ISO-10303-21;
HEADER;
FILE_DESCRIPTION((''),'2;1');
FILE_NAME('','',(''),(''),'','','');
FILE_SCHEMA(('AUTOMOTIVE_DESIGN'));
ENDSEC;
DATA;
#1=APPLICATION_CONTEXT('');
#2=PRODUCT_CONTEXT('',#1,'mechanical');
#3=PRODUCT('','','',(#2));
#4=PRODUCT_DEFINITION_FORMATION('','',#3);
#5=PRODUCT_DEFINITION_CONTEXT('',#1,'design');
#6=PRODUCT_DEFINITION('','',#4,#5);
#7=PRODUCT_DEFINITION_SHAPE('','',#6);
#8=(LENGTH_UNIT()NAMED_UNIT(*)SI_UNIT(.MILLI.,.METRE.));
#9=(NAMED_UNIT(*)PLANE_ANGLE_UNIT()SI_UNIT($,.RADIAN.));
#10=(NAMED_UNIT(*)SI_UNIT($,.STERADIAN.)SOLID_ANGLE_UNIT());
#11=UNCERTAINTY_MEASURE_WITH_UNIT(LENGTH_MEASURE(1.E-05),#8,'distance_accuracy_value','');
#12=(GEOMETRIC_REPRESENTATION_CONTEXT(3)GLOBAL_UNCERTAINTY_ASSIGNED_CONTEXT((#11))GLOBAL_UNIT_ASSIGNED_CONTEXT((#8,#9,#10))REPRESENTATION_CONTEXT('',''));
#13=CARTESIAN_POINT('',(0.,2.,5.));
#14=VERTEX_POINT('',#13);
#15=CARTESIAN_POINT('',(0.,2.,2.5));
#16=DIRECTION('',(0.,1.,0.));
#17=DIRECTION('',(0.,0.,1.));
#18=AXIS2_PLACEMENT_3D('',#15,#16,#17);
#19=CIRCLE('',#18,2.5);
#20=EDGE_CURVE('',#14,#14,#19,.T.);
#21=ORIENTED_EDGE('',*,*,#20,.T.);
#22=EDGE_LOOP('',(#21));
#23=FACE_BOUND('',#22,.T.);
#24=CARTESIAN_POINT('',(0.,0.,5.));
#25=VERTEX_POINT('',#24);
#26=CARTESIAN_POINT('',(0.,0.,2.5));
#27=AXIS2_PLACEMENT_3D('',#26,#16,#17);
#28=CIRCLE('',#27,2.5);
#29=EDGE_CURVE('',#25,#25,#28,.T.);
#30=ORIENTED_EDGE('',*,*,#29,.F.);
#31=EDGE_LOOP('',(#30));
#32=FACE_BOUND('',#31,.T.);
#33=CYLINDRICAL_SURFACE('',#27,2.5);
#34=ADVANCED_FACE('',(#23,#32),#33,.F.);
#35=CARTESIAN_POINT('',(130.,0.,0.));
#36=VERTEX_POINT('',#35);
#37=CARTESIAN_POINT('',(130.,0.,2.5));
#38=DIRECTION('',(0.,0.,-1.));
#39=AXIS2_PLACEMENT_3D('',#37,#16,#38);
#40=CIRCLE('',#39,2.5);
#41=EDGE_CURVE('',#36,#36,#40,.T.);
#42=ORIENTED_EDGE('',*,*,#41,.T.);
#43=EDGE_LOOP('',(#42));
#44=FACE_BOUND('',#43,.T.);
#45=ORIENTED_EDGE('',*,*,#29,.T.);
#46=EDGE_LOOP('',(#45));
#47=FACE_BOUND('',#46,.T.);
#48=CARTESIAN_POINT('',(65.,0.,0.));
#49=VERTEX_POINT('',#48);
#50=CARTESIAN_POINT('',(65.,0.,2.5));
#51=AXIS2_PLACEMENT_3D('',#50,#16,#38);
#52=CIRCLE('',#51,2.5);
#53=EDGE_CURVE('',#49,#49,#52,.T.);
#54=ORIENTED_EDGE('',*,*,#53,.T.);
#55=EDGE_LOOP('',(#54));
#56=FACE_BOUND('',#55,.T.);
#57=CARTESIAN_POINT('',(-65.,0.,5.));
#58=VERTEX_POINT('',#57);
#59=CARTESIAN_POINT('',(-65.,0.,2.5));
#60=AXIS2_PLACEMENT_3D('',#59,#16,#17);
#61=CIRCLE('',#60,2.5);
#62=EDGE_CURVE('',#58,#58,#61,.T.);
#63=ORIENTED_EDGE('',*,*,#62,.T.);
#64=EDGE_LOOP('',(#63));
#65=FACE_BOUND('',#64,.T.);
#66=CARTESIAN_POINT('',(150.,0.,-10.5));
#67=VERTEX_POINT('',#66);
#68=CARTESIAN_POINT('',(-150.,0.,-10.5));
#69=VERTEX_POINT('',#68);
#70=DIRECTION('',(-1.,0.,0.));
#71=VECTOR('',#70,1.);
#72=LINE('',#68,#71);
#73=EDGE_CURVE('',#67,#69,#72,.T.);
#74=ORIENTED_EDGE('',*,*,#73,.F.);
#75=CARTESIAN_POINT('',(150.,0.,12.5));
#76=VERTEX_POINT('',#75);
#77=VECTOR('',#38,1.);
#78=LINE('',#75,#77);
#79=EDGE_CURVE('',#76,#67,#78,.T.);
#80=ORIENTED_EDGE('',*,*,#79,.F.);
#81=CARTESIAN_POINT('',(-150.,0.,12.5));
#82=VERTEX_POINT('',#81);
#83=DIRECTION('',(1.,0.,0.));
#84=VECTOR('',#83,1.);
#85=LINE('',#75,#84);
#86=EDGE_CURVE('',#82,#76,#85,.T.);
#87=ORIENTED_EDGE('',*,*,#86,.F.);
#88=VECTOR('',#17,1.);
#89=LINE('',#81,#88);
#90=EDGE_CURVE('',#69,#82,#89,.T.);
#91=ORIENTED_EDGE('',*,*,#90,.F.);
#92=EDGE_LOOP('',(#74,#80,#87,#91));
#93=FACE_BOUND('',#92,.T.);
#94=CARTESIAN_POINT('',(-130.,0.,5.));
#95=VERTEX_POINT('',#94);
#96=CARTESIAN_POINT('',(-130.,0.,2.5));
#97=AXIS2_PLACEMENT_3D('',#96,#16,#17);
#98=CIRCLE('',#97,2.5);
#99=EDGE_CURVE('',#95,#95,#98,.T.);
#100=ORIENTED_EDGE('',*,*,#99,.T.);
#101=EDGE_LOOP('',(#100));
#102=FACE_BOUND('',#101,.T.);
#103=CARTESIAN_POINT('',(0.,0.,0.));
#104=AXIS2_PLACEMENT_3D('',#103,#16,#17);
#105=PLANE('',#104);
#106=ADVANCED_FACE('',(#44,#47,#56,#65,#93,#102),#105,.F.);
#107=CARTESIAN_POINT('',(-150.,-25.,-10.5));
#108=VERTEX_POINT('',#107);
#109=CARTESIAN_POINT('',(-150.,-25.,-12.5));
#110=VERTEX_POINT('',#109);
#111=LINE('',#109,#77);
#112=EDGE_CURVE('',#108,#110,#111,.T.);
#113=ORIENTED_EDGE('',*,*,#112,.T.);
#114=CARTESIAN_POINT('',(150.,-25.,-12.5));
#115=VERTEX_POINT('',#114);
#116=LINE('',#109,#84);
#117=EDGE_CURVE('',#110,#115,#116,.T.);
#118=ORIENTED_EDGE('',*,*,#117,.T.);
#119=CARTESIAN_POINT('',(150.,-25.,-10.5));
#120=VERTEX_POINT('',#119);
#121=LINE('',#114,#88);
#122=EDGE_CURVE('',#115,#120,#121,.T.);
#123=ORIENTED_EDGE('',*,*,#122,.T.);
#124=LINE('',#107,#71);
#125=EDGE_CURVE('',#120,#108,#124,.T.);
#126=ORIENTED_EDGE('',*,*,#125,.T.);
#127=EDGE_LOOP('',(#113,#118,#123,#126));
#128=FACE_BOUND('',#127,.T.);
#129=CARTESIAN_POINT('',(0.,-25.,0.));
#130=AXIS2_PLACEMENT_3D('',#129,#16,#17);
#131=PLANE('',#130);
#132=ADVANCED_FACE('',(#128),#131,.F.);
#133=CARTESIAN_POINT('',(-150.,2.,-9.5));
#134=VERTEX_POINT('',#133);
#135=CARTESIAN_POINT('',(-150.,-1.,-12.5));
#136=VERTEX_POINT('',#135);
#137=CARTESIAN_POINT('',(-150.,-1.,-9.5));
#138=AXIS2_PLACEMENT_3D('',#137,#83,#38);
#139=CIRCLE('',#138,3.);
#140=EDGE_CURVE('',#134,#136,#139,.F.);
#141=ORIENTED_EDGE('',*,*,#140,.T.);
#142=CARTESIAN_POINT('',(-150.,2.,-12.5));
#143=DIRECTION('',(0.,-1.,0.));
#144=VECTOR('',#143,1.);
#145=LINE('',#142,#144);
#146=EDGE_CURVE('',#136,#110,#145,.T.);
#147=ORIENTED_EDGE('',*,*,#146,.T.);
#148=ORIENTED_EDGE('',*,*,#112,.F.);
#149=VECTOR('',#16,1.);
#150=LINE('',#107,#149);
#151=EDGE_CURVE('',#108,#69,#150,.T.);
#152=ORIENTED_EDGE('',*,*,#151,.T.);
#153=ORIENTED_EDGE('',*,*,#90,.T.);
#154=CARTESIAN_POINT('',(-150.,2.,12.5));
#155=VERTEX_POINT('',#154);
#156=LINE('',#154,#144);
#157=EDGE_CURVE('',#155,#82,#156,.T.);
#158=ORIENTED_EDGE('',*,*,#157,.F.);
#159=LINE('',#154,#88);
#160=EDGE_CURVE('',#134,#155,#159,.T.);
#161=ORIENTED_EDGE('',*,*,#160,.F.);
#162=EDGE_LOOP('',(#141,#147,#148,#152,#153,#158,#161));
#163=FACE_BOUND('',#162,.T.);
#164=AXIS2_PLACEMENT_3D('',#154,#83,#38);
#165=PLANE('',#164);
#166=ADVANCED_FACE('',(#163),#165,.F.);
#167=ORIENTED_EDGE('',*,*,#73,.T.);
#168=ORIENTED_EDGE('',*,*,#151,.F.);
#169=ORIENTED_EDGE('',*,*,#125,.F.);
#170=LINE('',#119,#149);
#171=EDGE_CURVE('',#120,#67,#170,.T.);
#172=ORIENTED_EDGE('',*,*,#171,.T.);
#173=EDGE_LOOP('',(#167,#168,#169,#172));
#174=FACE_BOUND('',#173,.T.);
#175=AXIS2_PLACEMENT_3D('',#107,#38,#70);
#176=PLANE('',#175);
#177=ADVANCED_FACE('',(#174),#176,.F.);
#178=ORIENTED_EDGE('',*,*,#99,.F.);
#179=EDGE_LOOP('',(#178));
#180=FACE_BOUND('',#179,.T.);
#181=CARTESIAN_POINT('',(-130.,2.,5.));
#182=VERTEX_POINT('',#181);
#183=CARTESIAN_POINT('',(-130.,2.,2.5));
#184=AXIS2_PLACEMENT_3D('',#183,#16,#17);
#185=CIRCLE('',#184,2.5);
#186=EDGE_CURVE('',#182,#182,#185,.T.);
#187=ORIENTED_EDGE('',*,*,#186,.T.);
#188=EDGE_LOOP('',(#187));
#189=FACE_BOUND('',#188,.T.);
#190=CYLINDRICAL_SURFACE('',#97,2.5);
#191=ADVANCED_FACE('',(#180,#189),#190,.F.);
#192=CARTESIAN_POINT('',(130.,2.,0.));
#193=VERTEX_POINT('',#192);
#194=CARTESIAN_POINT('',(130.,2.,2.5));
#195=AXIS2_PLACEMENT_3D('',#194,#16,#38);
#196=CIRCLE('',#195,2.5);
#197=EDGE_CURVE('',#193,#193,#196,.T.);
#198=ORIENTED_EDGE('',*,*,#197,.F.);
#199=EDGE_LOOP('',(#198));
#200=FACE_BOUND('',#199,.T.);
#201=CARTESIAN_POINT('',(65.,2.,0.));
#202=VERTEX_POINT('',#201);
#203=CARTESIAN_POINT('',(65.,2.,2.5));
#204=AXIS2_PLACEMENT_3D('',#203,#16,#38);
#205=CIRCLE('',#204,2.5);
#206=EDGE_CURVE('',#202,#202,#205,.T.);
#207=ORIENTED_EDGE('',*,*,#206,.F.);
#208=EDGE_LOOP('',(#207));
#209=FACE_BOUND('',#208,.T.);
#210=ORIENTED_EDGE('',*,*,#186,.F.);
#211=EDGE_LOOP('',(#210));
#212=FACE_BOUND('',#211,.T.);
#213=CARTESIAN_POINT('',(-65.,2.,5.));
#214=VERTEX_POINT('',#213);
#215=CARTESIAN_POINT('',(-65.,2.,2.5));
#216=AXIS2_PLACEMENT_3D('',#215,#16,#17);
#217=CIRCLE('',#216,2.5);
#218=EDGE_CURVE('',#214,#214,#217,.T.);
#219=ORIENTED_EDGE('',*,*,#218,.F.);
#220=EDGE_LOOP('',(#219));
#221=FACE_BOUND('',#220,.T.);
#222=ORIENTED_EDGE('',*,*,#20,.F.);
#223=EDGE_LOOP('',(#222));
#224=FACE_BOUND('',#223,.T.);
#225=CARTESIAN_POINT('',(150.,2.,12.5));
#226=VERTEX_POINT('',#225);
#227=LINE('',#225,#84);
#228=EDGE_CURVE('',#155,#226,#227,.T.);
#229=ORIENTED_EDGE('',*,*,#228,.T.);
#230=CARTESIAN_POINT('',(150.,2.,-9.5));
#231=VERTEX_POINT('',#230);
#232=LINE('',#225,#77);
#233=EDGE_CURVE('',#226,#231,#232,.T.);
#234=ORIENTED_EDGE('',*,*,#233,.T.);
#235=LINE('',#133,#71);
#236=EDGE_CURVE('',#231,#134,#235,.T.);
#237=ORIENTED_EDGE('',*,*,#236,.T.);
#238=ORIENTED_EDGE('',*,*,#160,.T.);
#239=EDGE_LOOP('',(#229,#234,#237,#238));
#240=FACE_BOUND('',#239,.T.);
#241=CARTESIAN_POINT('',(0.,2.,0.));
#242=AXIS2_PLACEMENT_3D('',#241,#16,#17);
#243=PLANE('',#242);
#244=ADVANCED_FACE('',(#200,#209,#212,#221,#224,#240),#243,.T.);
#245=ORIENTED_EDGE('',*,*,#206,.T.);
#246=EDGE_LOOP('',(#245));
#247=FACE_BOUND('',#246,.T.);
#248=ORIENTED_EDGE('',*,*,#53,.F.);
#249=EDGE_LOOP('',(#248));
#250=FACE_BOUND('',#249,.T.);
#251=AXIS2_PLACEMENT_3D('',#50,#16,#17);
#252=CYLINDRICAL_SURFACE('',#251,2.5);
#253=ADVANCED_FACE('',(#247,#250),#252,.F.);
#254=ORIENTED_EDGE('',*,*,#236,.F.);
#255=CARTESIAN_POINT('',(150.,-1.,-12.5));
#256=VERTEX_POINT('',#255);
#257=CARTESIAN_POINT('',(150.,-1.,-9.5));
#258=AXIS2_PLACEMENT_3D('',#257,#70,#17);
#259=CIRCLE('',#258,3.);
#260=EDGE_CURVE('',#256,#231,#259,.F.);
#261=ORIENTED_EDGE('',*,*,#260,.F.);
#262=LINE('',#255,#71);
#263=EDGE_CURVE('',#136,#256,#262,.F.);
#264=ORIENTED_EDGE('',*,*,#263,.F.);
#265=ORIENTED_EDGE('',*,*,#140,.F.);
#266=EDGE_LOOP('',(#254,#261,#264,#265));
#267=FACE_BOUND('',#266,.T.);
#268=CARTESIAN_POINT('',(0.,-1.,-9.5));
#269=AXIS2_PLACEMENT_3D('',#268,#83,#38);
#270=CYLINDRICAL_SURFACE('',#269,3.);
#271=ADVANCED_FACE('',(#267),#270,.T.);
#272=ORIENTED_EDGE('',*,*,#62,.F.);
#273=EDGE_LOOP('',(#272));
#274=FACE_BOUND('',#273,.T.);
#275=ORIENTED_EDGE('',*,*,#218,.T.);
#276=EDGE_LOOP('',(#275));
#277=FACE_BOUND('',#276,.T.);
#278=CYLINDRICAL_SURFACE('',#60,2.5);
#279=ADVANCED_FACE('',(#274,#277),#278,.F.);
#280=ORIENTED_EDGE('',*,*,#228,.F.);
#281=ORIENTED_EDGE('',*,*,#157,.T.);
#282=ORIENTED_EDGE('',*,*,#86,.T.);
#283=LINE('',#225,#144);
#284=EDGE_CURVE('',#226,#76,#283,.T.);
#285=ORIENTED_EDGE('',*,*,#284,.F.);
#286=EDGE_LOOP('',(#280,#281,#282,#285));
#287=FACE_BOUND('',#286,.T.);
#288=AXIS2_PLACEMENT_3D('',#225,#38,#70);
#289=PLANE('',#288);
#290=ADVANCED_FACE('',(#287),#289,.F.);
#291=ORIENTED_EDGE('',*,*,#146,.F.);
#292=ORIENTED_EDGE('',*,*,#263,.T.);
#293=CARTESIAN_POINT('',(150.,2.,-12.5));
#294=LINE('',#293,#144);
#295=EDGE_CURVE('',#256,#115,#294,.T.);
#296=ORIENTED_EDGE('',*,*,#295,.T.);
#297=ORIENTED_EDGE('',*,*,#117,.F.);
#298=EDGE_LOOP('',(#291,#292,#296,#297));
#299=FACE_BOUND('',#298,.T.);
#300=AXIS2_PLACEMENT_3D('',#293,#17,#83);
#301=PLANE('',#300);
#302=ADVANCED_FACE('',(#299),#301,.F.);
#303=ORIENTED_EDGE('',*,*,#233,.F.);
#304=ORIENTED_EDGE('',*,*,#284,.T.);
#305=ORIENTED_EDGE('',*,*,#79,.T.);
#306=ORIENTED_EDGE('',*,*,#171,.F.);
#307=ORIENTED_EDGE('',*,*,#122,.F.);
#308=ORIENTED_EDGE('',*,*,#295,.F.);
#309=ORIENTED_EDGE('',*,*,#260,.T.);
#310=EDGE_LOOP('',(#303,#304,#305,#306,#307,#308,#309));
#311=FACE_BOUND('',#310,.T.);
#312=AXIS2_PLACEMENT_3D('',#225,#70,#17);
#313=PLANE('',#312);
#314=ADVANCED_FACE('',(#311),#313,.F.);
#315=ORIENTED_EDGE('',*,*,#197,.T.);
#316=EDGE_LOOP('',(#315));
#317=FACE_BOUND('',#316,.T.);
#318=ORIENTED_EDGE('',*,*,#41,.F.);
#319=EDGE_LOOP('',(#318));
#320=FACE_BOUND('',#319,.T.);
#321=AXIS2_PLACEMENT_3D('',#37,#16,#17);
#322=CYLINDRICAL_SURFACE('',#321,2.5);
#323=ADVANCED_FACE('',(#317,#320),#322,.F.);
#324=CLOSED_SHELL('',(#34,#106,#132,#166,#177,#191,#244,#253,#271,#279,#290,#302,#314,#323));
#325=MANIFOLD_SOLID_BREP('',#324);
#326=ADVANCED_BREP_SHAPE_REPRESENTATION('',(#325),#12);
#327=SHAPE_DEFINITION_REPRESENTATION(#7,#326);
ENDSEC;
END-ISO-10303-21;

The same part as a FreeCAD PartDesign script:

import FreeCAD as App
import Part
import Sketcher

V = App.Vector


def edges_at(feature, points):
    """Names of the edges that pass closest to the given points."""
    edges = feature.Shape.Edges
    near = lambda p: min(range(len(edges)), key=lambda i: edges[i].distToShape(Part.Vertex(*p))[0])
    return sorted({f"Edge{near(p) + 1}" for p in points})


def add_polygon(sketch, points):
    """Adds a closed chain of lines whose ends are joined by coincident constraints."""
    first, n = sketch.GeometryCount, len(points)
    for a, b in zip(points, points[1:] + points[:1]):
        sketch.addGeometry(Part.LineSegment(App.Vector(*a, 0), App.Vector(*b, 0)), False)
    for i in range(n):
        sketch.addConstraint(Sketcher.Constraint("Coincident", first + i, 2, first + (i + 1) % n, 1))

doc = App.newDocument("Part")
body = doc.addObject("PartDesign::Body", "Body")

# Sketch on XZ plane
sketch1 = doc.addObject("Sketcher::SketchObject", "Sketch")
body.addObject(sketch1)
sketch1.AttachmentSupport = (doc.XZ_Plane, [""])
sketch1.MapMode = "FlatFace"
add_polygon(sketch1, [(-150, -12), (-150, 12), (150, 12), (150, -12)])  # lines 0-3
sketch1.addConstraint(Sketcher.Constraint("Vertical", 0))
sketch1.addConstraint(Sketcher.Constraint("Horizontal", 1))
sketch1.addConstraint(Sketcher.Constraint("Vertical", 2))
sketch1.addConstraint(Sketcher.Constraint("Horizontal", 3))
sketch1.addConstraint(Sketcher.Constraint("Symmetric", 0, 2, 2, 2, -1, 1))
sketch1.addConstraint(Sketcher.Constraint("DistanceX", 1, 1, 1, 2, 300.0))
sketch1.addConstraint(Sketcher.Constraint("DistanceY", 0, 1, 0, 2, 25.0))
pad1 = doc.addObject("PartDesign::Pad", "Pad")
body.addObject(pad1)
pad1.Profile = sketch1
pad1.Length = 2
pad1.Reversed = True

# Sketch on XZ plane
sketch2 = doc.addObject("Sketcher::SketchObject", "Sketch001")
body.addObject(sketch2)
sketch2.AttachmentSupport = (doc.XZ_Plane, [""])
sketch2.MapMode = "FlatFace"
sketch2.AttachmentOffset = App.Placement(V(0, 0, -2), App.Rotation())
sketch2.addGeometry(Part.Circle(V(-130, 2.5, 0), V(0, 0, 1), 2.5), False)
sketch2.addGeometry(Part.Circle(V(-65, 2.5, 0), V(0, 0, 1), 2.5), False)
sketch2.addGeometry(Part.Circle(V(0, 2.5, 0), V(0, 0, 1), 2.5), False)
sketch2.addGeometry(Part.Circle(V(65, 2.5, 0), V(0, 0, 1), 2.5), False)
sketch2.addGeometry(Part.Circle(V(130, 2.5, 0), V(0, 0, 1), 2.5), False)
sketch2.addConstraint(Sketcher.Constraint("Equal", 0, 1))
sketch2.addConstraint(Sketcher.Constraint("Equal", 1, 2))
sketch2.addConstraint(Sketcher.Constraint("Equal", 2, 3))
sketch2.addConstraint(Sketcher.Constraint("Equal", 3, 4))
sketch2.addConstraint(Sketcher.Constraint("Symmetric", 1, 3, 3, 3, -2))
sketch2.addConstraint(Sketcher.Constraint("Symmetric", 0, 3, 4, 3, -2))
sketch2.addConstraint(Sketcher.Constraint("PointOnObject", 2, 3, -2))
sketch2.addConstraint(Sketcher.Constraint("Horizontal", 0, 3, 1, 3))
sketch2.addConstraint(Sketcher.Constraint("Horizontal", 1, 3, 2, 3))
sketch2.addConstraint(Sketcher.Constraint("Diameter", 0, 5.0))
sketch2.addConstraint(Sketcher.Constraint("DistanceX", 0, 3, -1, 1, 130.0))
sketch2.addConstraint(Sketcher.Constraint("DistanceX", 1, 3, -1, 1, 65.0))
sketch2.addConstraint(Sketcher.Constraint("DistanceY", -1, 1, 0, 3, 2.5))
pocket1 = doc.addObject("PartDesign::Pocket", "Pocket")
body.addObject(pocket1)
pocket1.Profile = sketch2
pocket1.Type = "ThroughAll"
pocket1.Reversed = True

# Sketch on XZ plane
sketch3 = doc.addObject("Sketcher::SketchObject", "Sketch002")
body.addObject(sketch3)
sketch3.AttachmentSupport = (doc.XZ_Plane, [""])
sketch3.MapMode = "FlatFace"
add_polygon(sketch3, [(-150, -10.5), (-150, -12.5), (150, -12.5), (150, -10.5)])  # lines 0-3
sketch3.addConstraint(Sketcher.Constraint("Vertical", 0))
sketch3.addConstraint(Sketcher.Constraint("Horizontal", 1))
sketch3.addConstraint(Sketcher.Constraint("Vertical", 2))
sketch3.addConstraint(Sketcher.Constraint("Horizontal", 3))
sketch3.addConstraint(Sketcher.Constraint("DistanceX", 1, 1, 1, 2, 300.0))
sketch3.addConstraint(Sketcher.Constraint("DistanceY", 0, 2, 0, 1, 2.0))
sketch3.addConstraint(Sketcher.Constraint("DistanceX", 0, 2, -1, 1, 150.0))
sketch3.addConstraint(Sketcher.Constraint("DistanceY", 0, 2, -1, 1, 12.5))
pad2 = doc.addObject("PartDesign::Pad", "Pad001")
body.addObject(pad2)
pad2.Profile = sketch3
pad2.Length = 25
doc.recompute()

fillet = doc.addObject("PartDesign::Fillet", "Fillet")
body.addObject(fillet)
fillet.Base = (pad2, edges_at(pad2, [(0, 2, -12.5)]))
fillet.Radius = 3

doc.recompute()
